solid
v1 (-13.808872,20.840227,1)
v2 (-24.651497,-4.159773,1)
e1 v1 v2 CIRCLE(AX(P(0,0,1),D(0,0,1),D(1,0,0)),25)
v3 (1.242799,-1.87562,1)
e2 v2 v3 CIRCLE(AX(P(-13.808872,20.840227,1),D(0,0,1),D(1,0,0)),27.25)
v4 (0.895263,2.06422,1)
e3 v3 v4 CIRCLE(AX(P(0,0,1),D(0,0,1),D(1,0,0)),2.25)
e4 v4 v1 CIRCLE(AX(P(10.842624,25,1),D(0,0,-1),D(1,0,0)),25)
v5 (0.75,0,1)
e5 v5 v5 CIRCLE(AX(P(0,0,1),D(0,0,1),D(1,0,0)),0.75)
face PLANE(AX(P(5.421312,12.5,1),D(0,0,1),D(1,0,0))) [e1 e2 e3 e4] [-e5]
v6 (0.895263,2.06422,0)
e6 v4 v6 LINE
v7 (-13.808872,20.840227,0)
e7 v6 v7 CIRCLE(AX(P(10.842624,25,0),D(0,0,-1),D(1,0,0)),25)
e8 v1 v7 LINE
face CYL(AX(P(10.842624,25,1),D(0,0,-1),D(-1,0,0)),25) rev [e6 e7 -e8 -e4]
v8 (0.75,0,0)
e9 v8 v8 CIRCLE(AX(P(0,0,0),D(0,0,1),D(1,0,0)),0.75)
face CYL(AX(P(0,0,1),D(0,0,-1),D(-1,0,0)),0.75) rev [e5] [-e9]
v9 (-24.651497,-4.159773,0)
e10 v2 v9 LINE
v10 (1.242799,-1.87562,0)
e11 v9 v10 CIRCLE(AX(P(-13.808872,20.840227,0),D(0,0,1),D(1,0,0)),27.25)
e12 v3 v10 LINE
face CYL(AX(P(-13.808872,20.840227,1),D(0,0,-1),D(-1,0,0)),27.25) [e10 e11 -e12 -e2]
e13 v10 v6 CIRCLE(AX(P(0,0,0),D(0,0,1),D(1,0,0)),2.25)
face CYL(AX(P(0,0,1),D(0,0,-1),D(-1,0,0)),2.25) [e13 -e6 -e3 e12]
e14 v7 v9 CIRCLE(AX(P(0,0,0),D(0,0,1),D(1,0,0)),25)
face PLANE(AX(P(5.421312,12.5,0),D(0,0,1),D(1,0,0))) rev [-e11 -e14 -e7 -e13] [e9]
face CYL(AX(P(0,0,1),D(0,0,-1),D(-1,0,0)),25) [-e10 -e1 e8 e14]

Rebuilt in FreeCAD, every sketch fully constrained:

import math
import FreeCAD as App
import Part
import Sketcher

doc = App.newDocument("Part")
body = doc.addObject("PartDesign::Body", "Body")

# Sketch on XY plane
sketch1 = doc.addObject("Sketcher::SketchObject", "Sketch")
body.addObject(sketch1)
sketch1.AttachmentSupport = (doc.XY_Plane, [""])
sketch1.MapMode = "FlatFace"
sketch1.addGeometry([
    Part.ArcOfCircle(Part.Circle(App.Vector(0, 0, 0), App.Vector(0, 0, 1), 2.25), math.radians(-56.471281), math.radians(66.553383)),  # 0
    Part.ArcOfCircle(Part.Circle(App.Vector(10.842624, 25, 0), App.Vector(0, 0, 1), 25), math.radians(-170.421954), math.radians(-113.446617)),  # 1
    Part.ArcOfCircle(Part.Circle(App.Vector(0, 0, 0), App.Vector(0, 0, 1), 25), math.radians(123.528719), math.radians(189.578046)),  # 2
    Part.ArcOfCircle(Part.Circle(App.Vector(-13.808872, 20.840227, 0), App.Vector(0, 0, 1), 27.25), math.radians(-113.446617), math.radians(-56.471281)),  # 3
    Part.Circle(App.Vector(0, 0, 0), App.Vector(0, 0, 1), 0.75),  # 4
], False)
sketch1.addConstraint([
    Sketcher.Constraint("Tangent", 0, 2, 1, 2),
    Sketcher.Constraint("Coincident", 1, 1, 2, 1),
    Sketcher.Constraint("Coincident", 2, 2, 3, 1),
    Sketcher.Constraint("Tangent", 3, 2, 0, 1),
    Sketcher.Constraint("Coincident", 0, 3, -1, 1),
    Sketcher.Constraint("Coincident", 2, 3, -1, 1),
    Sketcher.Constraint("Coincident", 4, 3, -1, 1),
    Sketcher.Constraint("Coincident", 1, 1, 3, 3),
    Sketcher.Constraint("Equal", 1, 2),
    Sketcher.Constraint("Radius", 1, 25.0),
    Sketcher.Constraint("Diameter", 4, 1.5),
    Sketcher.Constraint("Radius", 0, 2.25),
    Sketcher.Constraint("DistanceY", -1, 1, 1, 3, 25.0),
])
pad1 = doc.addObject("PartDesign::Pad", "Pad")
body.addObject(pad1)
pad1.Profile = sketch1
pad1.Length = 1

doc.recompute()
